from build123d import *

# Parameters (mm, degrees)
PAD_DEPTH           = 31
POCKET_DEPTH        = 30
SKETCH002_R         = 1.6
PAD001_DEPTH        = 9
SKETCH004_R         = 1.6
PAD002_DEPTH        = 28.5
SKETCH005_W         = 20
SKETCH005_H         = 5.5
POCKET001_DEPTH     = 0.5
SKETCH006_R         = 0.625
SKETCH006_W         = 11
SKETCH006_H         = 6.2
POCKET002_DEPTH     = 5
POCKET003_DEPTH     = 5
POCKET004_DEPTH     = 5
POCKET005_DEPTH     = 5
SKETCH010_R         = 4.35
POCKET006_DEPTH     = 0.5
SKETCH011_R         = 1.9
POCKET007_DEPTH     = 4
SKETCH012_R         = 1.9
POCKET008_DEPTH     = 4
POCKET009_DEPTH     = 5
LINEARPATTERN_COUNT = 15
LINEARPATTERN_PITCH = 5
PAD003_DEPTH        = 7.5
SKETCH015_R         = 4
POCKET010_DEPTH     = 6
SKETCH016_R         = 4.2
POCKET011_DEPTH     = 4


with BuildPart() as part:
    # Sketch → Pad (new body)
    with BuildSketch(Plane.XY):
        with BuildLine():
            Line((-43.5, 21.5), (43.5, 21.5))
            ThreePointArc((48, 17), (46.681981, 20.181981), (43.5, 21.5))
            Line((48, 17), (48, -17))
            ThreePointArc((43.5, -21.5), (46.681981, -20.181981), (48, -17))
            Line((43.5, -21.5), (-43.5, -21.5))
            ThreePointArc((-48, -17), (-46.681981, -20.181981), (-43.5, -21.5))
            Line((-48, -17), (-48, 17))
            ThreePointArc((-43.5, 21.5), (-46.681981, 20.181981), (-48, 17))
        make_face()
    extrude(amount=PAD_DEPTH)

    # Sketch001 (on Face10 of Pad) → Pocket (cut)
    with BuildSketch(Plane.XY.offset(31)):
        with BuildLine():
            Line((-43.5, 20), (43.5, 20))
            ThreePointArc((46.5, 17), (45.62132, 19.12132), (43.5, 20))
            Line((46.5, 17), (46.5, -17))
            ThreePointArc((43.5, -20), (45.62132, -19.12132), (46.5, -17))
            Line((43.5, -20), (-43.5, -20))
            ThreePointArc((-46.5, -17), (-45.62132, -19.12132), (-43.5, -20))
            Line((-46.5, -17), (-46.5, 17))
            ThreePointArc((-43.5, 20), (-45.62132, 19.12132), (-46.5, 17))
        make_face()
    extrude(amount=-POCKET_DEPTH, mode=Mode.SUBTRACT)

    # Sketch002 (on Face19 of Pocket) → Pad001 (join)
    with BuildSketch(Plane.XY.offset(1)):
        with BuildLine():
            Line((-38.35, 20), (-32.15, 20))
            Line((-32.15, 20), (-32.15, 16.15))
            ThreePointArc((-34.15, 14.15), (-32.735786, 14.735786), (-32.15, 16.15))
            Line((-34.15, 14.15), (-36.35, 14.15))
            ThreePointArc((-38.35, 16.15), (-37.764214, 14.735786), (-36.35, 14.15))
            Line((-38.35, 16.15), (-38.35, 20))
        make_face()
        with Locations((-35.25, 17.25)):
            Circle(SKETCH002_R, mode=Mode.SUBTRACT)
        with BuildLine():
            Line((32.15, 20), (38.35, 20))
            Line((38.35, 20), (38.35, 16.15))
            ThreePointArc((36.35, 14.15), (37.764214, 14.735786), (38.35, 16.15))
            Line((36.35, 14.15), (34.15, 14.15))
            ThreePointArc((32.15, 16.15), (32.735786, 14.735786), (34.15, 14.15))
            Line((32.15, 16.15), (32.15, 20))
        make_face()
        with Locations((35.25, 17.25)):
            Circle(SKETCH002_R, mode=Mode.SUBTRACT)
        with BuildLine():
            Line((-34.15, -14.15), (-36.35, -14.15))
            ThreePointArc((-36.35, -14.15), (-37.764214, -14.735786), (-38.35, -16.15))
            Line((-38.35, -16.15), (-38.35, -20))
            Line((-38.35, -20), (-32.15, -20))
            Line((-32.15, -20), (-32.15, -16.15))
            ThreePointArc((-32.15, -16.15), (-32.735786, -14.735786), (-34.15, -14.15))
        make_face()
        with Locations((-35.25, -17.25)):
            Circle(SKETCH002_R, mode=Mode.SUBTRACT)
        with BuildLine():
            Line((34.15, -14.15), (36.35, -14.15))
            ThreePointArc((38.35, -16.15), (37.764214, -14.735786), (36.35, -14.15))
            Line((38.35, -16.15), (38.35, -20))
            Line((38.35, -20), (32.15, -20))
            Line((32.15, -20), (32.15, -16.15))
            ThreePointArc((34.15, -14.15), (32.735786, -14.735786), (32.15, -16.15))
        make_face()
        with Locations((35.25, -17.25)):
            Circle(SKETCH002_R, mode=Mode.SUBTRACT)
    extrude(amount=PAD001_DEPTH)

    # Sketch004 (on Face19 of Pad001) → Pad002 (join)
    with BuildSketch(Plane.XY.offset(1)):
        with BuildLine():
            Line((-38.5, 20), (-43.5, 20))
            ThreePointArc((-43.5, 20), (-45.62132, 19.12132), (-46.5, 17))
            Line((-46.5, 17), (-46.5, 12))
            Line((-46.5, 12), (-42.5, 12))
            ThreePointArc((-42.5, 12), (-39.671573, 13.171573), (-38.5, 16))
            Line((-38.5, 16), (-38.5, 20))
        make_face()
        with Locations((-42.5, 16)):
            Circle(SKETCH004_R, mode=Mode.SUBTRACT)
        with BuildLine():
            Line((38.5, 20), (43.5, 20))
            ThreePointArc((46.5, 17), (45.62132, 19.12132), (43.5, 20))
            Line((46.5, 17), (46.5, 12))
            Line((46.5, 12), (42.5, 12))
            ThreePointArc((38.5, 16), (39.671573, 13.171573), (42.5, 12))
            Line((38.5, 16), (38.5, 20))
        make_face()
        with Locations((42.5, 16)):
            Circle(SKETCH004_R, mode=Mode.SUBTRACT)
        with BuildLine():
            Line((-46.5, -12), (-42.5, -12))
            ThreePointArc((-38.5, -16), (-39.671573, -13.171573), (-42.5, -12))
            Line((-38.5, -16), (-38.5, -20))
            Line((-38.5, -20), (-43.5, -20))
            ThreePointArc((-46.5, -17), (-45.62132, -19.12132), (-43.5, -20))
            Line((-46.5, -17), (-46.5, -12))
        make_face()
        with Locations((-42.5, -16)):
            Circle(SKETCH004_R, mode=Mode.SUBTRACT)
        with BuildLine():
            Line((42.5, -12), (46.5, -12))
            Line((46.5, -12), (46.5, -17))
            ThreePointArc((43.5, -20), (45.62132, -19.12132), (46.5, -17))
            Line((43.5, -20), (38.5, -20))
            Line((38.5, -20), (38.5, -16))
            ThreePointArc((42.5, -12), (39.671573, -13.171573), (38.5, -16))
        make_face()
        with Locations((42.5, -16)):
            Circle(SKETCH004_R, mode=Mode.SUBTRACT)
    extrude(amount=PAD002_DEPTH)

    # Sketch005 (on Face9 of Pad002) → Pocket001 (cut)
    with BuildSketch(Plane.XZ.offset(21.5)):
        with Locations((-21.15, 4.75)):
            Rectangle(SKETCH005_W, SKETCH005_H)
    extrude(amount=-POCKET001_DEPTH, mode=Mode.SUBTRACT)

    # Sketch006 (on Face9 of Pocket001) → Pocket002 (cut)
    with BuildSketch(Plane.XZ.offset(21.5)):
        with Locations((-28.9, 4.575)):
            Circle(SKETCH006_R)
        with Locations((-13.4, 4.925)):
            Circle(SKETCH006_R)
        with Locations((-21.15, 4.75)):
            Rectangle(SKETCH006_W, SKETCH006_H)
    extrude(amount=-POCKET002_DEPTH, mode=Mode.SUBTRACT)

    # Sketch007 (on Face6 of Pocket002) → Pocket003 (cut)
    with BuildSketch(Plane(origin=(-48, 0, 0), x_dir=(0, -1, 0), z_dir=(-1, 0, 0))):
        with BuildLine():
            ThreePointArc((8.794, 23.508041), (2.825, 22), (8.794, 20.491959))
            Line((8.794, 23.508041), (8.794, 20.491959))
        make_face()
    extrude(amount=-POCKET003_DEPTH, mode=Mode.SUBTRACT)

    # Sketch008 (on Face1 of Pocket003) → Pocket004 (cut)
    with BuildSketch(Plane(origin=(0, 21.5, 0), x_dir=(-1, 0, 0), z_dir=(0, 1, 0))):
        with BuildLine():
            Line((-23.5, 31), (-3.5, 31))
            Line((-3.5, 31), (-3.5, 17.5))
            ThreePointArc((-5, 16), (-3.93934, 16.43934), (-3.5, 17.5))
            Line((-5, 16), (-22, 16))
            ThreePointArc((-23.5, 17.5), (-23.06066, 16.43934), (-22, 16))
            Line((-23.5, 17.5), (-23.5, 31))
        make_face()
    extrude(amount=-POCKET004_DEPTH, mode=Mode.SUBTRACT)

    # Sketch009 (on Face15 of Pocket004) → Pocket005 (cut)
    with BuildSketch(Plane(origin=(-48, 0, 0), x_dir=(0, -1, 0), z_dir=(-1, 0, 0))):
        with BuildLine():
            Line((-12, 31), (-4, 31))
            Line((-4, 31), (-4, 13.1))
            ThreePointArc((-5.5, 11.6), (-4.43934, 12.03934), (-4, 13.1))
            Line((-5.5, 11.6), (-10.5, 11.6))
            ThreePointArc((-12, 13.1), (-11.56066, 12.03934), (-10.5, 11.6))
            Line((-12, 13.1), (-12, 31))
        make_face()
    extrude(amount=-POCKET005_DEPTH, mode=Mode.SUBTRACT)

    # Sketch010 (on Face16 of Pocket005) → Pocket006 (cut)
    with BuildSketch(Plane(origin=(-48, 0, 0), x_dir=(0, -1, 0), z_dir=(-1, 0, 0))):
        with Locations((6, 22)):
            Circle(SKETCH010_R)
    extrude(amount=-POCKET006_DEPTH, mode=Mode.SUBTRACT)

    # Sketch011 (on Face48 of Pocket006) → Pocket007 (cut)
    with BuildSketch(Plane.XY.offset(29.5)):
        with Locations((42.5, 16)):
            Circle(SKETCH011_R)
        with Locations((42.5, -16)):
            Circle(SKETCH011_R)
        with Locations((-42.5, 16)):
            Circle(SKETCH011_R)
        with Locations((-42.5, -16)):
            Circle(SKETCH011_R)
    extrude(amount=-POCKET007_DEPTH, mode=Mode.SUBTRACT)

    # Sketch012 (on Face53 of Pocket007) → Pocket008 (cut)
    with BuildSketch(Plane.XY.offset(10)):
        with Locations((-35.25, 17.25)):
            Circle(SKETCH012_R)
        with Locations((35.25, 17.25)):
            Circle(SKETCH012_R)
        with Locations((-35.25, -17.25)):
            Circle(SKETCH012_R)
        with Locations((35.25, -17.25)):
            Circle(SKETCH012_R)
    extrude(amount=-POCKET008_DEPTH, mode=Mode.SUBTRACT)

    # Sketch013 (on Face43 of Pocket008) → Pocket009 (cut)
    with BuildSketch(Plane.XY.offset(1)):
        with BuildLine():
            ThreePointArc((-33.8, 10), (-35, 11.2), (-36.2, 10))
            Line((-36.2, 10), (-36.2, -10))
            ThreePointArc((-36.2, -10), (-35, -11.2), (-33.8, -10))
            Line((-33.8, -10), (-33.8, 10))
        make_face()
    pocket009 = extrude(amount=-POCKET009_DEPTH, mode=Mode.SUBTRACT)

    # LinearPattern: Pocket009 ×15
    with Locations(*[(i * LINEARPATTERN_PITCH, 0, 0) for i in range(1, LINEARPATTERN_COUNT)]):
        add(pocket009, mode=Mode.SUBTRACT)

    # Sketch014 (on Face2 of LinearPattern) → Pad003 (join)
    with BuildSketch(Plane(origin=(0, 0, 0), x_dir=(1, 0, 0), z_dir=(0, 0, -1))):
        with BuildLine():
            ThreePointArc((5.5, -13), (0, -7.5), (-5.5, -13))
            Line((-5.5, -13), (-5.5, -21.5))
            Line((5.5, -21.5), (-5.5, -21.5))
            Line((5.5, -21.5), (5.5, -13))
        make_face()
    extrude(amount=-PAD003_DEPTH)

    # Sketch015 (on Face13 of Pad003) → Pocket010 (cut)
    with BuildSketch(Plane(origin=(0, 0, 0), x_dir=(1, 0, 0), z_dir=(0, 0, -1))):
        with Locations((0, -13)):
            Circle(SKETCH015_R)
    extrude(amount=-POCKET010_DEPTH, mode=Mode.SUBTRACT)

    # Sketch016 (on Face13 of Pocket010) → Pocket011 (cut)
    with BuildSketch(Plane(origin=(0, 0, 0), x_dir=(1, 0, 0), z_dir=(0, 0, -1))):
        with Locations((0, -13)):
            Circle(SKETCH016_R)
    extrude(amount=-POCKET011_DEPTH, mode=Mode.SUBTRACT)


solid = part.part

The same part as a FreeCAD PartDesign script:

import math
import FreeCAD as App
import Part
import Sketcher

V = App.Vector
Q = App.Units.Quantity


def add_polygon(sketch, points):
    """Adds a closed chain of lines whose ends are joined by coincident constraints."""
    first, n = sketch.GeometryCount, len(points)
    for a, b in zip(points, points[1:] + points[:1]):
        sketch.addGeometry(Part.LineSegment(App.Vector(*a, 0), App.Vector(*b, 0)), False)
    for i in range(n):
        sketch.addConstraint(Sketcher.Constraint("Coincident", first + i, 2, first + (i + 1) % n, 1))

doc = App.newDocument("Part")
body = doc.addObject("PartDesign::Body", "Body")

sketch1 = body.newObject("Sketcher::SketchObject", "Sketch")
sketch1.AttachmentSupport = (doc.getObject("XY_Plane"), [""])
sketch1.MapMode = "FlatFace"
sketch1.addGeometry([
    Part.LineSegment(V(43.5, 21.5, 0), V(-43.5, 21.5, 0)),
    Part.ArcOfCircle(Part.Circle(V(-43.5, 17, 0), V(0, 0, 1), 4.5), math.radians(90), math.radians(180)),
    Part.LineSegment(V(-48, 17, 0), V(-48, -17, 0)),
    Part.ArcOfCircle(Part.Circle(V(-43.5, -17, 0), V(0, 0, 1), 4.5), math.radians(180), math.radians(270)),
    Part.LineSegment(V(-43.5, -21.5, 0), V(43.5, -21.5, 0)),
    Part.ArcOfCircle(Part.Circle(V(43.5, -17, 0), V(0, 0, 1), 4.5), math.radians(-90), math.radians(0)),
    Part.LineSegment(V(48, -17, 0), V(48, 17, 0)),
    Part.ArcOfCircle(Part.Circle(V(43.5, 17, 0), V(0, 0, 1), 4.5), math.radians(0), math.radians(90)),
], False)
sketch1.addConstraint([
    Sketcher.Constraint("Tangent", 0, 2, 1, 1),
    Sketcher.Constraint("Tangent", 1, 2, 2, 1),
    Sketcher.Constraint("Tangent", 2, 2, 3, 1),
    Sketcher.Constraint("Tangent", 3, 2, 4, 1),
    Sketcher.Constraint("Tangent", 4, 2, 5, 1),
    Sketcher.Constraint("Tangent", 5, 2, 6, 1),
    Sketcher.Constraint("Tangent", 6, 2, 7, 1),
    Sketcher.Constraint("Tangent", 7, 2, 0, 1),
    Sketcher.Constraint("Horizontal", 0),
    Sketcher.Constraint("Vertical", 2),
    Sketcher.Constraint("Horizontal", 4),
    Sketcher.Constraint("Vertical", 6),
    Sketcher.Constraint("Equal", 1, 3),
    Sketcher.Constraint("Equal", 3, 5),
    Sketcher.Constraint("Equal", 5, 7),
    Sketcher.Constraint("Symmetric", 1, 3, 5, 3, -1, 1),
    Sketcher.Constraint("Radius", 1, Q("4.499998 mm")),
    Sketcher.Constraint("DistanceX", 0, 2, 0, 1, Q("87 mm")),
    Sketcher.Constraint("DistanceY", 2, 2, 2, 1, Q("34 mm")),
])
pad1 = body.newObject("PartDesign::Pad", "Pad")
pad1.Profile = sketch1
pad1.Length = 31

sketch2 = body.newObject("Sketcher::SketchObject", "Sketch001")
sketch2.AttachmentSupport = (doc.getObject("XY_Plane"), [""])
sketch2.MapMode = "FlatFace"
sketch2.AttachmentOffset = App.Placement(V(0, 0, 31), App.Rotation())
sketch2.addGeometry([
    Part.LineSegment(V(43.5, 20, 0), V(-43.5, 20, 0)),
    Part.ArcOfCircle(Part.Circle(V(-43.5, 17, 0), V(0, 0, 1), 3), math.radians(90), math.radians(180)),
    Part.LineSegment(V(-46.5, 17, 0), V(-46.5, -17, 0)),
    Part.ArcOfCircle(Part.Circle(V(-43.5, -17, 0), V(0, 0, 1), 3), math.radians(-180), math.radians(-90)),
    Part.LineSegment(V(-43.5, -20, 0), V(43.5, -20, 0)),
    Part.ArcOfCircle(Part.Circle(V(43.5, -17, 0), V(0, 0, 1), 3), math.radians(-90), math.radians(0)),
    Part.LineSegment(V(46.5, -17, 0), V(46.5, 17, 0)),
    Part.ArcOfCircle(Part.Circle(V(43.5, 17, 0), V(0, 0, 1), 3), math.radians(0), math.radians(90)),
], False)
sketch2.addConstraint([
    Sketcher.Constraint("Tangent", 0, 2, 1, 1),
    Sketcher.Constraint("Tangent", 1, 2, 2, 1),
    Sketcher.Constraint("Tangent", 2, 2, 3, 1),
    Sketcher.Constraint("Tangent", 3, 2, 4, 1),
    Sketcher.Constraint("Tangent", 4, 2, 5, 1),
    Sketcher.Constraint("Tangent", 5, 2, 6, 1),
    Sketcher.Constraint("Tangent", 6, 2, 7, 1),
    Sketcher.Constraint("Tangent", 7, 2, 0, 1),
    Sketcher.Constraint("Horizontal", 0),
    Sketcher.Constraint("Vertical", 2),
    Sketcher.Constraint("Horizontal", 4),
    Sketcher.Constraint("Vertical", 6),
    Sketcher.Constraint("Equal", 1, 3),
    Sketcher.Constraint("Equal", 3, 5),
    Sketcher.Constraint("Equal", 5, 7),
    Sketcher.Constraint("Symmetric", 1, 3, 5, 3, -1, 1),
    Sketcher.Constraint("Radius", 1, Q("3.000001 mm")),
    Sketcher.Constraint("DistanceX", 0, 2, 0, 1, Q("87 mm")),
    Sketcher.Constraint("DistanceY", 2, 2, 2, 1, Q("34 mm")),
])
pocket1 = body.newObject("PartDesign::Pocket", "Pocket")
pocket1.Profile = sketch2
pocket1.Length = 30

sketch3 = body.newObject("Sketcher::SketchObject", "Sketch002")
sketch3.AttachmentSupport = (doc.getObject("XY_Plane"), [""])
sketch3.MapMode = "FlatFace"
sketch3.AttachmentOffset = App.Placement(V(0, 0, 1), App.Rotation())
sketch3.addGeometry([
    Part.LineSegment(V(-32.1, 20, 0), V(-38.4, 20, 0)),
    Part.LineSegment(V(-38.4, 20, 0), V(-38.4, 16.1, 0)),
    Part.ArcOfCircle(Part.Circle(V(-36.4, 16.1, 0), V(0, 0, 1), 2), math.radians(180), math.radians(270)),
    Part.LineSegment(V(-36.4, 14.2, 0), V(-34.1, 14.2, 0)),
    Part.ArcOfCircle(Part.Circle(V(-34.1, 16.1, 0), V(0, 0, 1), 2), math.radians(-90), math.radians(0)),
    Part.LineSegment(V(-32.1, 16.1, 0), V(-32.1, 20, 0)),
    Part.Circle(V(-35.2, 17.2, 0), V(0, 0, 1), 1.6),
    Part.LineSegment(V(38.4, 20, 0), V(32.1, 20, 0)),
    Part.LineSegment(V(32.1, 20, 0), V(32.1, 16.1, 0)),
    Part.ArcOfCircle(Part.Circle(V(34.1, 16.1, 0), V(0, 0, 1), 2), math.radians(180), math.radians(270)),
    Part.LineSegment(V(34.1, 14.2, 0), V(36.4, 14.2, 0)),
    Part.ArcOfCircle(Part.Circle(V(36.4, 16.1, 0), V(0, 0, 1), 2), math.radians(-90), math.radians(0)),
    Part.LineSegment(V(38.4, 16.1, 0), V(38.4, 20, 0)),
    Part.Circle(V(35.2, 17.2, 0), V(0, 0, 1), 1.6),
    Part.LineSegment(V(-34.1, -14.2, 0), V(-36.4, -14.2, 0)),
    Part.ArcOfCircle(Part.Circle(V(-36.4, -16.1, 0), V(0, 0, 1), 2), math.radians(90), math.radians(180)),
    Part.LineSegment(V(-38.4, -16.1, 0), V(-38.4, -20, 0)),
    Part.LineSegment(V(-38.4, -20, 0), V(-32.1, -20, 0)),
    Part.LineSegment(V(-32.1, -20, 0), V(-32.1, -16.1, 0)),
    Part.ArcOfCircle(Part.Circle(V(-34.1, -16.1, 0), V(0, 0, 1), 2), math.radians(0), math.radians(90)),
    Part.Circle(V(-35.2, -17.2, 0), V(0, 0, 1), 1.6),
    Part.LineSegment(V(36.4, -14.2, 0), V(34.1, -14.2, 0)),
    Part.ArcOfCircle(Part.Circle(V(34.1, -16.1, 0), V(0, 0, 1), 2), math.radians(90), math.radians(180)),
    Part.LineSegment(V(32.1, -16.1, 0), V(32.1, -20, 0)),
    Part.LineSegment(V(32.1, -20, 0), V(38.4, -20, 0)),
    Part.LineSegment(V(38.4, -20, 0), V(38.4, -16.1, 0)),
    Part.ArcOfCircle(Part.Circle(V(36.4, -16.1, 0), V(0, 0, 1), 2), math.radians(0), math.radians(90)),
    Part.Circle(V(35.2, -17.2, 0), V(0, 0, 1), 1.6),
], False)
sketch3.addConstraint([
    Sketcher.Constraint("Coincident", 0, 2, 1, 1),
    Sketcher.Constraint("Tangent", 1, 2, 2, 1),
    Sketcher.Constraint("Tangent", 2, 2, 3, 1),
    Sketcher.Constraint("Tangent", 3, 2, 4, 1),
    Sketcher.Constraint("Tangent", 4, 2, 5, 1),
    Sketcher.Constraint("Coincident", 5, 2, 0, 1),
    Sketcher.Constraint("Coincident", 7, 2, 8, 1),
    Sketcher.Constraint("Tangent", 8, 2, 9, 1),
    Sketcher.Constraint("Tangent", 9, 2, 10, 1),
    Sketcher.Constraint("Tangent", 10, 2, 11, 1),
    Sketcher.Constraint("Tangent", 11, 2, 12, 1),
    Sketcher.Constraint("Coincident", 12, 2, 7, 1),
    Sketcher.Constraint("Tangent", 14, 2, 15, 1),
    Sketcher.Constraint("Tangent", 15, 2, 16, 1),
    Sketcher.Constraint("Coincident", 16, 2, 17, 1),
    Sketcher.Constraint("Coincident", 17, 2, 18, 1),
    Sketcher.Constraint("Tangent", 18, 2, 19, 1),
    Sketcher.Constraint("Tangent", 19, 2, 14, 1),
    Sketcher.Constraint("Tangent", 21, 2, 22, 1),
    Sketcher.Constraint("Tangent", 22, 2, 23, 1),
    Sketcher.Constraint("Coincident", 23, 2, 24, 1),
    Sketcher.Constraint("Coincident", 24, 2, 25, 1),
    Sketcher.Constraint("Tangent", 25, 2, 26, 1),
    Sketcher.Constraint("Tangent", 26, 2, 21, 1),
    Sketcher.Constraint("Horizontal", 0),
    Sketcher.Constraint("Vertical", 1),
    Sketcher.Constraint("Horizontal", 3),
    Sketcher.Constraint("Vertical", 5),
    Sketcher.Constraint("Horizontal", 7),
    Sketcher.Constraint("Vertical", 8),
    Sketcher.Constraint("Horizontal", 10),
    Sketcher.Constraint("Vertical", 12),
    Sketcher.Constraint("Horizontal", 14),
    Sketcher.Constraint("Vertical", 16),
    Sketcher.Constraint("Horizontal", 17),
    Sketcher.Constraint("Vertical", 18),
    Sketcher.Constraint("Horizontal", 21),
    Sketcher.Constraint("Vertical", 23),
    Sketcher.Constraint("Horizontal", 24),
    Sketcher.Constraint("Vertical", 25),
    Sketcher.Constraint("Equal", 2, 4),
    Sketcher.Constraint("Equal", 4, 9),
    Sketcher.Constraint("Equal", 9, 11),
    Sketcher.Constraint("Equal", 6, 13),
    Sketcher.Constraint("Equal", 11, 15),
    Sketcher.Constraint("Equal", 15, 19),
    Sketcher.Constraint("Equal", 13, 20),
    Sketcher.Constraint("Equal", 19, 22),
    Sketcher.Constraint("Equal", 22, 26),
    Sketcher.Constraint("Equal", 20, 27),
    Sketcher.Constraint("Symmetric", 11, 3, 15, 3, -1, 1),
    Sketcher.Constraint("Symmetric", 13, 3, 20, 3, -1, 1),
    Sketcher.Constraint("Symmetric", 4, 3, 22, 3, -1, 1),
    Sketcher.Constraint("Symmetric", 6, 3, 27, 3, -1, 1),
    Sketcher.Constraint("Symmetric", 7, 2, 17, 2, -1, 1),
    Sketcher.Constraint("Symmetric", 0, 2, 24, 2, -1, 1),
    Sketcher.Constraint("Symmetric", 4, 3, 9, 3, -2),
    Sketcher.Constraint("Symmetric", 6, 3, 13, 3, -2),
    Sketcher.Constraint("Symmetric", 0, 2, 12, 2, -2),
    Sketcher.Constraint("Radius", 2, Q("1.999999 mm")),
    Sketcher.Constraint("Diameter", 6, Q("3.2 mm")),
    Sketcher.Constraint("DistanceX", 0, 2, 0, 1, Q("6.2 mm")),
    Sketcher.Constraint("DistanceY", -1, 1, 0, 2, Q("20 mm")),
    Sketcher.Constraint("DistanceY", 1, 2, 1, 1, Q("3.85 mm")),
    Sketcher.Constraint("DistanceX", 2, 3, 6, 3, Q("1.100001 mm")),
    Sketcher.Constraint("DistanceY", 2, 3, 6, 3, Q("1.100001 mm")),
    Sketcher.Constraint("DistanceX", 6, 3, 9, 3, Q("69.399999 mm")),
])
pad2 = body.newObject("PartDesign::Pad", "Pad001")
pad2.Profile = sketch3
pad2.Length = 9

sketch4 = body.newObject("Sketcher::SketchObject", "Sketch003")
sketch4.AttachmentSupport = (doc.getObject("XY_Plane"), [""])
sketch4.MapMode = "FlatFace"
sketch4.AttachmentOffset = App.Placement(V(0, 0, 1), App.Rotation())
sketch4.addGeometry([
    Part.LineSegment(V(-38.5, 20, 0), V(-43.5, 20, 0)),
    Part.ArcOfCircle(Part.Circle(V(-43.5, 17, 0), V(0, 0, 1), 3), math.radians(90), math.radians(180)),
    Part.LineSegment(V(-46.5, 17, 0), V(-46.5, 12, 0)),
    Part.LineSegment(V(-46.5, 12, 0), V(-42.5, 12, 0)),
    Part.ArcOfCircle(Part.Circle(V(-42.5, 16, 0), V(0, 0, 1), 4), math.radians(-90), math.radians(0)),
    Part.LineSegment(V(-38.5, 16, 0), V(-38.5, 20, 0)),
    Part.Circle(V(-42.5, 16, 0), V(0, 0, 1), 1.6),
    Part.LineSegment(V(43.5, 20, 0), V(38.5, 20, 0)),
    Part.LineSegment(V(38.5, 20, 0), V(38.5, 16, 0)),
    Part.ArcOfCircle(Part.Circle(V(42.5, 16, 0), V(0, 0, 1), 4), math.radians(-180), math.radians(-90)),
    Part.LineSegment(V(42.5, 12, 0), V(46.5, 12, 0)),
    Part.LineSegment(V(46.5, 12, 0), V(46.5, 17, 0)),
    Part.ArcOfCircle(Part.Circle(V(43.5, 17, 0), V(0, 0, 1), 3), math.radians(0), math.radians(90)),
    Part.Circle(V(42.5, 16, 0), V(0, 0, 1), 1.6),
    Part.LineSegment(V(-42.5, -12, 0), V(-46.5, -12, 0)),
    Part.LineSegment(V(-46.5, -12, 0), V(-46.5, -17, 0)),
    Part.ArcOfCircle(Part.Circle(V(-43.5, -17, 0), V(0, 0, 1), 3), math.radians(-180), math.radians(-90)),
    Part.LineSegment(V(-43.5, -20, 0), V(-38.5, -20, 0)),
    Part.LineSegment(V(-38.5, -20, 0), V(-38.5, -16, 0)),
    Part.ArcOfCircle(Part.Circle(V(-42.5, -16, 0), V(0, 0, 1), 4), math.radians(0), math.radians(90)),
    Part.Circle(V(-42.5, -16, 0), V(0, 0, 1), 1.6),
    Part.LineSegment(V(46.5, -12, 0), V(42.5, -12, 0)),
    Part.ArcOfCircle(Part.Circle(V(42.5, -16, 0), V(0, 0, 1), 4), math.radians(90), math.radians(180)),
    Part.LineSegment(V(38.5, -16, 0), V(38.5, -20, 0)),
    Part.LineSegment(V(38.5, -20, 0), V(43.5, -20, 0)),
    Part.ArcOfCircle(Part.Circle(V(43.5, -17, 0), V(0, 0, 1), 3), math.radians(-90), math.radians(0)),
    Part.LineSegment(V(46.5, -17, 0), V(46.5, -12, 0)),
    Part.Circle(V(42.5, -16, 0), V(0, 0, 1), 1.6),
], False)
sketch4.addConstraint([
    Sketcher.Constraint("Tangent", 0, 2, 1, 1),
    Sketcher.Constraint("Tangent", 1, 2, 2, 1),
    Sketcher.Constraint("Coincident", 2, 2, 3, 1),
    Sketcher.Constraint("Tangent", 3, 2, 4, 1),
    Sketcher.Constraint("Tangent", 4, 2, 5, 1),
    Sketcher.Constraint("Coincident", 5, 2, 0, 1),
    Sketcher.Constraint("Coincident", 7, 2, 8, 1),
    Sketcher.Constraint("Tangent", 8, 2, 9, 1),
    Sketcher.Constraint("Tangent", 9, 2, 10, 1),
    Sketcher.Constraint("Coincident", 10, 2, 11, 1),
    Sketcher.Constraint("Tangent", 11, 2, 12, 1),
    Sketcher.Constraint("Tangent", 12, 2, 7, 1),
    Sketcher.Constraint("Coincident", 14, 2, 15, 1),
    Sketcher.Constraint("Tangent", 15, 2, 16, 1),
    Sketcher.Constraint("Tangent", 16, 2, 17, 1),
    Sketcher.Constraint("Coincident", 17, 2, 18, 1),
    Sketcher.Constraint("Tangent", 18, 2, 19, 1),
    Sketcher.Constraint("Tangent", 19, 2, 14, 1),
    Sketcher.Constraint("Tangent", 21, 2, 22, 1),
    Sketcher.Constraint("Tangent", 22, 2, 23, 1),
    Sketcher.Constraint("Coincident", 23, 2, 24, 1),
    Sketcher.Constraint("Tangent", 24, 2, 25, 1),
    Sketcher.Constraint("Tangent", 25, 2, 26, 1),
    Sketcher.Constraint("Coincident", 26, 2, 21, 1),
    Sketcher.Constraint("Horizontal", 0),
    Sketcher.Constraint("Vertical", 2),
    Sketcher.Constraint("Horizontal", 3),
    Sketcher.Constraint("Vertical", 5),
    Sketcher.Constraint("Horizontal", 7),
    Sketcher.Constraint("Vertical", 8),
    Sketcher.Constraint("Horizontal", 10),
    Sketcher.Constraint("Vertical", 11),
    Sketcher.Constraint("Horizontal", 14),
    Sketcher.Constraint("Vertical", 15),
    Sketcher.Constraint("Horizontal", 17),
    Sketcher.Constraint("Vertical", 18),
    Sketcher.Constraint("Horizontal", 21),
    Sketcher.Constraint("Vertical", 23),
    Sketcher.Constraint("Horizontal", 24),
    Sketcher.Constraint("Vertical", 26),
    Sketcher.Constraint("Coincident", 6, 3, 4, 3),
    Sketcher.Constraint("Coincident", 13, 3, 9, 3),
    Sketcher.Constraint("Coincident", 20, 3, 19, 3),
    Sketcher.Constraint("Coincident", 27, 3, 22, 3),
    Sketcher.Constraint("Equal", 4, 9),
    Sketcher.Constraint("Equal", 1, 12),
    Sketcher.Constraint("Equal", 6, 13),
    Sketcher.Constraint("Equal", 12, 16),
    Sketcher.Constraint("Equal", 9, 19),
    Sketcher.Constraint("Equal", 13, 20),
    Sketcher.Constraint("Equal", 19, 22),
    Sketcher.Constraint("Equal", 16, 25),
    Sketcher.Constraint("Equal", 20, 27),
    Sketcher.Constraint("Symmetric", 12, 3, 16, 3, -1, 1),
    Sketcher.Constraint("Symmetric", 9, 3, 19, 3, -1, 1),
    Sketcher.Constraint("Symmetric", 4, 3, 22, 3, -1, 1),
    Sketcher.Constraint("Symmetric", 1, 3, 25, 3, -1, 1),
    Sketcher.Constraint("Symmetric", 4, 3, 9, 3, -2),
    Sketcher.Constraint("Symmetric", 1, 3, 12, 3, -2),
    Sketcher.Constraint("Equal", 24, 2),
    Sketcher.Constraint("Radius", 1, Q("3.000001 mm")),
    Sketcher.Constraint("Radius", 4, Q("4 mm")),
    Sketcher.Constraint("Diameter", 6, Q("3.2 mm")),
    Sketcher.Constraint("DistanceX", 0, 2, 0, 1, Q("5 mm")),
    Sketcher.Constraint("DistanceY", -1, 1, 1, 3, Q("16.999999 mm")),
    Sketcher.Constraint("DistanceX", 6, 3, 9, 3, Q("85 mm")),
])
pad3 = body.newObject("PartDesign::Pad", "Pad002")
pad3.Profile = sketch4
pad3.Length = 28.5

sketch5 = body.newObject("Sketcher::SketchObject", "Sketch004")
sketch5.AttachmentSupport = (doc.getObject("XZ_Plane"), [""])
sketch5.MapMode = "FlatFace"
sketch5.AttachmentOffset = App.Placement(V(0, 0, 21.5), App.Rotation())
add_polygon(sketch5, [(-31, 8), (-31, 2), (-11, 2), (-11, 8)])
sketch5.addConstraint([
    Sketcher.Constraint("Vertical", 0),
    Sketcher.Constraint("Horizontal", 1),
    Sketcher.Constraint("Vertical", 2),
    Sketcher.Constraint("Horizontal", 3),
    Sketcher.Constraint("DistanceX", 1, 1, 1, 2, Q("20 mm")),
    Sketcher.Constraint("DistanceY", 0, 2, 0, 1, Q("5.5 mm")),
    Sketcher.Constraint("DistanceY", -1, 1, 0, 2, Q("2 mm")),
    Sketcher.Constraint("DistanceX", 0, 2, -1, 1, Q("31.15 mm")),
])
pocket2 = body.newObject("PartDesign::Pocket", "Pocket001")
pocket2.Profile = sketch5
pocket2.Length = 0.5

sketch6 = body.newObject("Sketcher::SketchObject", "Sketch005")
sketch6.AttachmentSupport = (doc.getObject("XZ_Plane"), [""])
sketch6.MapMode = "FlatFace"
sketch6.AttachmentOffset = App.Placement(V(0, 0, 21.5), App.Rotation())
sketch6.addGeometry(Part.Circle(V(-28.9, 4.6, 0), V(0, 0, 1), 0.6), False)
sketch6.addGeometry(Part.Circle(V(-13.4, 4.9, 0), V(0, 0, 1), 0.6), False)
add_polygon(sketch6, [(-26.6, 7.8), (-26.6, 1.6), (-15.7, 1.6), (-15.7, 7.8)])
sketch6.addConstraint([
    Sketcher.Constraint("Vertical", 2),
    Sketcher.Constraint("Horizontal", 3),
    Sketcher.Constraint("Vertical", 4),
    Sketcher.Constraint("Horizontal", 5),
    Sketcher.Constraint("Equal", 0, 1),
    Sketcher.Constraint("Diameter", 0, Q("1.25 mm")),
    Sketcher.Constraint("DistanceX", 3, 1, 3, 2, Q("11 mm")),
    Sketcher.Constraint("DistanceY", 2, 2, 2, 1, Q("6.2 mm")),
    Sketcher.Constraint("DistanceX", 0, 3, -1, 1, Q("28.9 mm")),
    Sketcher.Constraint("DistanceX", 1, 3, -1, 1, Q("13.4 mm")),
    Sketcher.Constraint("DistanceX", 2, 2, -1, 1, Q("26.65 mm")),
    Sketcher.Constraint("DistanceY", -1, 1, 2, 2, Q("1.65 mm")),
    Sketcher.Constraint("DistanceY", 0, 3, 1, 3, Q("0.35 mm")),
    Sketcher.Constraint("DistanceY", -1, 1, 0, 3, Q("4.575 mm")),
])
pocket3 = body.newObject("PartDesign::Pocket", "Pocket002")
pocket3.Profile = sketch6
pocket3.Length = 5

sketch7 = body.newObject("Sketcher::SketchObject", "Sketch006")
sketch7.AttachmentSupport = (doc.getObject("YZ_Plane"), [""])
sketch7.MapMode = "FlatFace"
sketch7.AttachmentOffset = App.Placement(V(0, 0, -48), App.Rotation())
sketch7.addGeometry([
    Part.ArcOfCircle(Part.Circle(V(-6, 22, 0), V(0, 0, 1), 3.2), math.radians(-152), math.radians(152)),
    Part.LineSegment(V(-8.8, 20.5, 0), V(-8.8, 23.5, 0)),
], False)
sketch7.addConstraint([
    Sketcher.Constraint("Coincident", 0, 1, 1, 1),
    Sketcher.Constraint("Coincident", 1, 2, 0, 2),
    Sketcher.Constraint("Vertical", 1),
    Sketcher.Constraint("DistanceX", 0, 3, -1, 1, Q("6 mm")),
    Sketcher.Constraint("DistanceY", -1, 1, 0, 3, Q("22 mm")),
    Sketcher.Constraint("Radius", 0, Q("3.175 mm")),
    Sketcher.Constraint("DistanceX", 0, 1, -1, 1, Q("8.794 mm")),
])
pocket4 = body.newObject("PartDesign::Pocket", "Pocket003")
pocket4.Profile = sketch7
pocket4.Length = 5
pocket4.Reversed = True

sketch8 = body.newObject("Sketcher::SketchObject", "Sketch007")
sketch8.AttachmentSupport = (doc.getObject("XZ_Plane"), [""])
sketch8.MapMode = "FlatFace"
sketch8.AttachmentOffset = App.Placement(V(0, 0, -21.5), App.Rotation())
sketch8.addGeometry([
    Part.LineSegment(V(3.5, 31, 0), V(23.5, 31, 0)),
    Part.LineSegment(V(23.5, 31, 0), V(23.5, 17.5, 0)),
    Part.ArcOfCircle(Part.Circle(V(22, 17.5, 0), V(0, 0, 1), 1.5), math.radians(-90), math.radians(0)),
    Part.LineSegment(V(22, 16, 0), V(5, 16, 0)),
    Part.ArcOfCircle(Part.Circle(V(5, 17.5, 0), V(0, 0, 1), 1.5), math.radians(-180), math.radians(-90)),
    Part.LineSegment(V(3.5, 17.5, 0), V(3.5, 31, 0)),
], False)
sketch8.addConstraint([
    Sketcher.Constraint("Coincident", 0, 2, 1, 1),
    Sketcher.Constraint("Tangent", 1, 2, 2, 2),
    Sketcher.Constraint("Tangent", 2, 1, 3, 1),
    Sketcher.Constraint("Tangent", 3, 2, 4, 2),
    Sketcher.Constraint("Tangent", 4, 1, 5, 1),
    Sketcher.Constraint("Coincident", 5, 2, 0, 1),
    Sketcher.Constraint("Horizontal", 0),
    Sketcher.Constraint("Vertical", 1),
    Sketcher.Constraint("Horizontal", 3),
    Sketcher.Constraint("Vertical", 5),
    Sketcher.Constraint("Equal", 2, 4),
    Sketcher.Constraint("Radius", 2, Q("1.500001 mm")),
    Sketcher.Constraint("DistanceX", 0, 1, 0, 2, Q("20 mm")),
    Sketcher.Constraint("DistanceY", 1, 2, 1, 1, Q("13.5 mm")),
    Sketcher.Constraint("DistanceX", -1, 1, 2, 3, Q("21.999999 mm")),
    Sketcher.Constraint("DistanceY", -1, 1, 0, 2, Q("31 mm")),
])
pocket5 = body.newObject("PartDesign::Pocket", "Pocket004")
pocket5.Profile = sketch8
pocket5.Length = 5
pocket5.Reversed = True

sketch9 = body.newObject("Sketcher::SketchObject", "Sketch008")
sketch9.AttachmentSupport = (doc.getObject("YZ_Plane"), [""])
sketch9.MapMode = "FlatFace"
sketch9.AttachmentOffset = App.Placement(V(0, 0, -48), App.Rotation())
sketch9.addGeometry([
    Part.LineSegment(V(4, 31, 0), V(12, 31, 0)),
    Part.LineSegment(V(12, 31, 0), V(12, 13.1, 0)),
    Part.ArcOfCircle(Part.Circle(V(10.5, 13.1, 0), V(0, 0, 1), 1.5), math.radians(-90), math.radians(0)),
    Part.LineSegment(V(10.5, 11.6, 0), V(5.5, 11.6, 0)),
    Part.ArcOfCircle(Part.Circle(V(5.5, 13.1, 0), V(0, 0, 1), 1.5), math.radians(-180), math.radians(-90)),
    Part.LineSegment(V(4, 13.1, 0), V(4, 31, 0)),
], False)
sketch9.addConstraint([
    Sketcher.Constraint("Coincident", 0, 2, 1, 1),
    Sketcher.Constraint("Tangent", 1, 2, 2, 2),
    Sketcher.Constraint("Tangent", 2, 1, 3, 1),
    Sketcher.Constraint("Tangent", 3, 2, 4, 2),
    Sketcher.Constraint("Tangent", 4, 1, 5, 1),
    Sketcher.Constraint("Coincident", 5, 2, 0, 1),
    Sketcher.Constraint("Horizontal", 0),
    Sketcher.Constraint("Vertical", 1),
    Sketcher.Constraint("Horizontal", 3),
    Sketcher.Constraint("Vertical", 5),
    Sketcher.Constraint("Equal", 2, 4),
    Sketcher.Constraint("Radius", 2, Q("1.500001 mm")),
    Sketcher.Constraint("DistanceX", 0, 1, 0, 2, Q("8 mm")),
    Sketcher.Constraint("DistanceY", 1, 2, 1, 1, Q("17.9 mm")),
    Sketcher.Constraint("DistanceX", -1, 1, 0, 2, Q("12 mm")),
    Sketcher.Constraint("DistanceY", -1, 1, 0, 2, Q("31 mm")),
])
pocket6 = body.newObject("PartDesign::Pocket", "Pocket005")
pocket6.Profile = sketch9
pocket6.Length = 5
pocket6.Reversed = True

sketch10 = body.newObject("Sketcher::SketchObject", "Sketch009")
sketch10.AttachmentSupport = (doc.getObject("YZ_Plane"), [""])
sketch10.MapMode = "FlatFace"
sketch10.AttachmentOffset = App.Placement(V(0, 0, -48), App.Rotation())
sketch10.addGeometry(Part.Circle(V(-6, 22, 0), V(0, 0, 1), 4.3), False)
sketch10.addConstraint([
    Sketcher.Constraint("Diameter", 0, Q("8.7 mm")),
    Sketcher.Constraint("DistanceX", 0, 3, -1, 1, Q("6 mm")),
    Sketcher.Constraint("DistanceY", -1, 1, 0, 3, Q("22 mm")),
])
pocket7 = body.newObject("PartDesign::Pocket", "Pocket006")
pocket7.Profile = sketch10
pocket7.Length = 0.5
pocket7.Reversed = True

sketch11 = body.newObject("Sketcher::SketchObject", "Sketch010")
sketch11.AttachmentSupport = (doc.getObject("XY_Plane"), [""])
sketch11.MapMode = "FlatFace"
sketch11.AttachmentOffset = App.Placement(V(0, 0, 29.5), App.Rotation())
sketch11.addGeometry([
    Part.Circle(V(42.5, 16, 0), V(0, 0, 1), 1.9),
    Part.Circle(V(42.5, -16, 0), V(0, 0, 1), 1.9),
    Part.Circle(V(-42.5, 16, 0), V(0, 0, 1), 1.9),
    Part.Circle(V(-42.5, -16, 0), V(0, 0, 1), 1.9),
], False)
sketch11.addConstraint([
    Sketcher.Constraint("Equal", 0, 1),
    Sketcher.Constraint("Equal", 1, 2),
    Sketcher.Constraint("Equal", 2, 3),
    Sketcher.Constraint("Symmetric", 1, 3, 2, 3, -1, 1),
    Sketcher.Constraint("Symmetric", 0, 3, 3, 3, -1, 1),
    Sketcher.Constraint("Symmetric", 0, 3, 2, 3, -2),
    Sketcher.Constraint("Diameter", 0, Q("3.8 mm")),
    Sketcher.Constraint("DistanceY", -1, 1, 0, 3, Q("16 mm")),
    Sketcher.Constraint("DistanceX", 2, 3, 0, 3, Q("85 mm")),
])
pocket8 = body.newObject("PartDesign::Pocket", "Pocket007")
pocket8.Profile = sketch11
pocket8.Length = 4

sketch12 = body.newObject("Sketcher::SketchObject", "Sketch011")
sketch12.AttachmentSupport = (doc.getObject("XY_Plane"), [""])
sketch12.MapMode = "FlatFace"
sketch12.AttachmentOffset = App.Placement(V(0, 0, 10), App.Rotation())
sketch12.addGeometry([
    Part.Circle(V(-35.2, 17.2, 0), V(0, 0, 1), 1.9),
    Part.Circle(V(35.2, 17.2, 0), V(0, 0, 1), 1.9),
    Part.Circle(V(-35.2, -17.2, 0), V(0, 0, 1), 1.9),
    Part.Circle(V(35.2, -17.2, 0), V(0, 0, 1), 1.9),
], False)
sketch12.addConstraint([
    Sketcher.Constraint("Equal", 0, 1),
    Sketcher.Constraint("Equal", 1, 2),
    Sketcher.Constraint("Equal", 2, 3),
    Sketcher.Constraint("Symmetric", 1, 3, 2, 3, -1, 1),
    Sketcher.Constraint("Symmetric", 0, 3, 3, 3, -1, 1),
    Sketcher.Constraint("Symmetric", 0, 3, 1, 3, -2),
    Sketcher.Constraint("Diameter", 0, Q("3.8 mm")),
    Sketcher.Constraint("DistanceX", 0, 3, 1, 3, Q("70.5 mm")),
    Sketcher.Constraint("DistanceY", 2, 3, 0, 3, Q("34.5 mm")),
])
pocket9 = body.newObject("PartDesign::Pocket", "Pocket008")
pocket9.Profile = sketch12
pocket9.Length = 4

sketch13 = body.newObject("Sketcher::SketchObject", "Sketch012")
sketch13.AttachmentSupport = (doc.getObject("XY_Plane"), [""])
sketch13.MapMode = "FlatFace"
sketch13.AttachmentOffset = App.Placement(V(0, 0, 1), App.Rotation())
sketch13.addGeometry([
    Part.ArcOfCircle(Part.Circle(V(-35, 10, 0), V(0, 0, 1), 1.2), math.radians(0), math.radians(180)),
    Part.LineSegment(V(-36.2, 10, 0), V(-36.2, -10, 0)),
    Part.ArcOfCircle(Part.Circle(V(-35, -10, 0), V(0, 0, 1), 1.2), math.radians(180), math.radians(360)),
    Part.LineSegment(V(-33.8, -10, 0), V(-33.8, 10, 0)),
], False)
sketch13.addConstraint([
    Sketcher.Constraint("Tangent", 0, 2, 1, 1),
    Sketcher.Constraint("Tangent", 1, 2, 2, 1),
    Sketcher.Constraint("Tangent", 2, 2, 3, 1),
    Sketcher.Constraint("Tangent", 3, 2, 0, 1),
    Sketcher.Constraint("Vertical", 1),
    Sketcher.Constraint("Vertical", 3),
    Sketcher.Constraint("Radius", 0, Q("1.2 mm")),
    Sketcher.Constraint("DistanceY", 1, 2, 1, 1, Q("20 mm")),
    Sketcher.Constraint("DistanceX", 0, 3, -1, 1, Q("35 mm")),
    Sketcher.Constraint("DistanceY", -1, 1, 0, 3, Q("10 mm")),
])
pocket10 = body.newObject("PartDesign::Pocket", "Pocket009")
pocket10.Profile = sketch13
pocket10.Length = 5
doc.recompute()

linearpattern = body.newObject("PartDesign::LinearPattern", "LinearPattern")
linearpattern.Originals = [pocket10]
linearpattern.Direction = (doc.getObject("X_Axis"), [""])
linearpattern.Mode = "offset"
linearpattern.Offset = 5
linearpattern.Occurrences = 15
body.Tip = linearpattern

sketch14 = body.newObject("Sketcher::SketchObject", "Sketch013")
sketch14.AttachmentSupport = (doc.getObject("XY_Plane"), [""])
sketch14.MapMode = "FlatFace"
sketch14.addGeometry([
    Part.ArcOfCircle(Part.Circle(V(0, 13, 0), V(0, 0, 1), 6), math.radians(180), math.radians(360)),
    Part.LineSegment(V(-6, 13, 0), V(-6, 22, 0)),
    Part.LineSegment(V(-6, 22, 0), V(6, 22, 0)),
    Part.LineSegment(V(6, 22, 0), V(6, 13, 0)),
], False)
sketch14.addConstraint([
    Sketcher.Constraint("Tangent", 0, 1, 1, 1),
    Sketcher.Constraint("Coincident", 1, 2, 2, 1),
    Sketcher.Constraint("Coincident", 2, 2, 3, 1),
    Sketcher.Constraint("Tangent", 3, 2, 0, 2),
    Sketcher.Constraint("Vertical", 1),
    Sketcher.Constraint("Horizontal", 2),
    Sketcher.Constraint("Vertical", 3),
    Sketcher.Constraint("PointOnObject", 0, 3, -2),
    Sketcher.Constraint("Radius", 0, Q("5.5 mm")),
    Sketcher.Constraint("DistanceY", 1, 1, 1, 2, Q("8.5 mm")),
    Sketcher.Constraint("DistanceY", -1, 1, 0, 3, Q("13 mm")),
])
pad4 = body.newObject("PartDesign::Pad", "Pad003")
pad4.Profile = sketch14
pad4.Length = 7.5

sketch15 = body.newObject("Sketcher::SketchObject", "Sketch014")
sketch15.AttachmentSupport = (doc.getObject("XY_Plane"), [""])
sketch15.MapMode = "FlatFace"
sketch15.addGeometry(Part.Circle(V(0, 13, 0), V(0, 0, 1), 4), False)
sketch15.addConstraint([
    Sketcher.Constraint("PointOnObject", 0, 3, -2),
    Sketcher.Constraint("Diameter", 0, Q("8 mm")),
    Sketcher.Constraint("DistanceY", -1, 1, 0, 3, Q("13 mm")),
])
pocket11 = body.newObject("PartDesign::Pocket", "Pocket010")
pocket11.Profile = sketch15
pocket11.Length = 6
pocket11.Reversed = True

sketch16 = body.newObject("Sketcher::SketchObject", "Sketch015")
sketch16.AttachmentSupport = (doc.getObject("XY_Plane"), [""])
sketch16.MapMode = "FlatFace"
sketch16.addGeometry(Part.Circle(V(0, 13, 0), V(0, 0, 1), 4.2), False)
sketch16.addConstraint([
    Sketcher.Constraint("PointOnObject", 0, 3, -2),
    Sketcher.Constraint("Diameter", 0, Q("8.4 mm")),
    Sketcher.Constraint("DistanceY", -1, 1, 0, 3, Q("13 mm")),
])
pocket12 = body.newObject("PartDesign::Pocket", "Pocket011")
pocket12.Profile = sketch16
pocket12.Length = 4
pocket12.Reversed = True

doc.recompute()
